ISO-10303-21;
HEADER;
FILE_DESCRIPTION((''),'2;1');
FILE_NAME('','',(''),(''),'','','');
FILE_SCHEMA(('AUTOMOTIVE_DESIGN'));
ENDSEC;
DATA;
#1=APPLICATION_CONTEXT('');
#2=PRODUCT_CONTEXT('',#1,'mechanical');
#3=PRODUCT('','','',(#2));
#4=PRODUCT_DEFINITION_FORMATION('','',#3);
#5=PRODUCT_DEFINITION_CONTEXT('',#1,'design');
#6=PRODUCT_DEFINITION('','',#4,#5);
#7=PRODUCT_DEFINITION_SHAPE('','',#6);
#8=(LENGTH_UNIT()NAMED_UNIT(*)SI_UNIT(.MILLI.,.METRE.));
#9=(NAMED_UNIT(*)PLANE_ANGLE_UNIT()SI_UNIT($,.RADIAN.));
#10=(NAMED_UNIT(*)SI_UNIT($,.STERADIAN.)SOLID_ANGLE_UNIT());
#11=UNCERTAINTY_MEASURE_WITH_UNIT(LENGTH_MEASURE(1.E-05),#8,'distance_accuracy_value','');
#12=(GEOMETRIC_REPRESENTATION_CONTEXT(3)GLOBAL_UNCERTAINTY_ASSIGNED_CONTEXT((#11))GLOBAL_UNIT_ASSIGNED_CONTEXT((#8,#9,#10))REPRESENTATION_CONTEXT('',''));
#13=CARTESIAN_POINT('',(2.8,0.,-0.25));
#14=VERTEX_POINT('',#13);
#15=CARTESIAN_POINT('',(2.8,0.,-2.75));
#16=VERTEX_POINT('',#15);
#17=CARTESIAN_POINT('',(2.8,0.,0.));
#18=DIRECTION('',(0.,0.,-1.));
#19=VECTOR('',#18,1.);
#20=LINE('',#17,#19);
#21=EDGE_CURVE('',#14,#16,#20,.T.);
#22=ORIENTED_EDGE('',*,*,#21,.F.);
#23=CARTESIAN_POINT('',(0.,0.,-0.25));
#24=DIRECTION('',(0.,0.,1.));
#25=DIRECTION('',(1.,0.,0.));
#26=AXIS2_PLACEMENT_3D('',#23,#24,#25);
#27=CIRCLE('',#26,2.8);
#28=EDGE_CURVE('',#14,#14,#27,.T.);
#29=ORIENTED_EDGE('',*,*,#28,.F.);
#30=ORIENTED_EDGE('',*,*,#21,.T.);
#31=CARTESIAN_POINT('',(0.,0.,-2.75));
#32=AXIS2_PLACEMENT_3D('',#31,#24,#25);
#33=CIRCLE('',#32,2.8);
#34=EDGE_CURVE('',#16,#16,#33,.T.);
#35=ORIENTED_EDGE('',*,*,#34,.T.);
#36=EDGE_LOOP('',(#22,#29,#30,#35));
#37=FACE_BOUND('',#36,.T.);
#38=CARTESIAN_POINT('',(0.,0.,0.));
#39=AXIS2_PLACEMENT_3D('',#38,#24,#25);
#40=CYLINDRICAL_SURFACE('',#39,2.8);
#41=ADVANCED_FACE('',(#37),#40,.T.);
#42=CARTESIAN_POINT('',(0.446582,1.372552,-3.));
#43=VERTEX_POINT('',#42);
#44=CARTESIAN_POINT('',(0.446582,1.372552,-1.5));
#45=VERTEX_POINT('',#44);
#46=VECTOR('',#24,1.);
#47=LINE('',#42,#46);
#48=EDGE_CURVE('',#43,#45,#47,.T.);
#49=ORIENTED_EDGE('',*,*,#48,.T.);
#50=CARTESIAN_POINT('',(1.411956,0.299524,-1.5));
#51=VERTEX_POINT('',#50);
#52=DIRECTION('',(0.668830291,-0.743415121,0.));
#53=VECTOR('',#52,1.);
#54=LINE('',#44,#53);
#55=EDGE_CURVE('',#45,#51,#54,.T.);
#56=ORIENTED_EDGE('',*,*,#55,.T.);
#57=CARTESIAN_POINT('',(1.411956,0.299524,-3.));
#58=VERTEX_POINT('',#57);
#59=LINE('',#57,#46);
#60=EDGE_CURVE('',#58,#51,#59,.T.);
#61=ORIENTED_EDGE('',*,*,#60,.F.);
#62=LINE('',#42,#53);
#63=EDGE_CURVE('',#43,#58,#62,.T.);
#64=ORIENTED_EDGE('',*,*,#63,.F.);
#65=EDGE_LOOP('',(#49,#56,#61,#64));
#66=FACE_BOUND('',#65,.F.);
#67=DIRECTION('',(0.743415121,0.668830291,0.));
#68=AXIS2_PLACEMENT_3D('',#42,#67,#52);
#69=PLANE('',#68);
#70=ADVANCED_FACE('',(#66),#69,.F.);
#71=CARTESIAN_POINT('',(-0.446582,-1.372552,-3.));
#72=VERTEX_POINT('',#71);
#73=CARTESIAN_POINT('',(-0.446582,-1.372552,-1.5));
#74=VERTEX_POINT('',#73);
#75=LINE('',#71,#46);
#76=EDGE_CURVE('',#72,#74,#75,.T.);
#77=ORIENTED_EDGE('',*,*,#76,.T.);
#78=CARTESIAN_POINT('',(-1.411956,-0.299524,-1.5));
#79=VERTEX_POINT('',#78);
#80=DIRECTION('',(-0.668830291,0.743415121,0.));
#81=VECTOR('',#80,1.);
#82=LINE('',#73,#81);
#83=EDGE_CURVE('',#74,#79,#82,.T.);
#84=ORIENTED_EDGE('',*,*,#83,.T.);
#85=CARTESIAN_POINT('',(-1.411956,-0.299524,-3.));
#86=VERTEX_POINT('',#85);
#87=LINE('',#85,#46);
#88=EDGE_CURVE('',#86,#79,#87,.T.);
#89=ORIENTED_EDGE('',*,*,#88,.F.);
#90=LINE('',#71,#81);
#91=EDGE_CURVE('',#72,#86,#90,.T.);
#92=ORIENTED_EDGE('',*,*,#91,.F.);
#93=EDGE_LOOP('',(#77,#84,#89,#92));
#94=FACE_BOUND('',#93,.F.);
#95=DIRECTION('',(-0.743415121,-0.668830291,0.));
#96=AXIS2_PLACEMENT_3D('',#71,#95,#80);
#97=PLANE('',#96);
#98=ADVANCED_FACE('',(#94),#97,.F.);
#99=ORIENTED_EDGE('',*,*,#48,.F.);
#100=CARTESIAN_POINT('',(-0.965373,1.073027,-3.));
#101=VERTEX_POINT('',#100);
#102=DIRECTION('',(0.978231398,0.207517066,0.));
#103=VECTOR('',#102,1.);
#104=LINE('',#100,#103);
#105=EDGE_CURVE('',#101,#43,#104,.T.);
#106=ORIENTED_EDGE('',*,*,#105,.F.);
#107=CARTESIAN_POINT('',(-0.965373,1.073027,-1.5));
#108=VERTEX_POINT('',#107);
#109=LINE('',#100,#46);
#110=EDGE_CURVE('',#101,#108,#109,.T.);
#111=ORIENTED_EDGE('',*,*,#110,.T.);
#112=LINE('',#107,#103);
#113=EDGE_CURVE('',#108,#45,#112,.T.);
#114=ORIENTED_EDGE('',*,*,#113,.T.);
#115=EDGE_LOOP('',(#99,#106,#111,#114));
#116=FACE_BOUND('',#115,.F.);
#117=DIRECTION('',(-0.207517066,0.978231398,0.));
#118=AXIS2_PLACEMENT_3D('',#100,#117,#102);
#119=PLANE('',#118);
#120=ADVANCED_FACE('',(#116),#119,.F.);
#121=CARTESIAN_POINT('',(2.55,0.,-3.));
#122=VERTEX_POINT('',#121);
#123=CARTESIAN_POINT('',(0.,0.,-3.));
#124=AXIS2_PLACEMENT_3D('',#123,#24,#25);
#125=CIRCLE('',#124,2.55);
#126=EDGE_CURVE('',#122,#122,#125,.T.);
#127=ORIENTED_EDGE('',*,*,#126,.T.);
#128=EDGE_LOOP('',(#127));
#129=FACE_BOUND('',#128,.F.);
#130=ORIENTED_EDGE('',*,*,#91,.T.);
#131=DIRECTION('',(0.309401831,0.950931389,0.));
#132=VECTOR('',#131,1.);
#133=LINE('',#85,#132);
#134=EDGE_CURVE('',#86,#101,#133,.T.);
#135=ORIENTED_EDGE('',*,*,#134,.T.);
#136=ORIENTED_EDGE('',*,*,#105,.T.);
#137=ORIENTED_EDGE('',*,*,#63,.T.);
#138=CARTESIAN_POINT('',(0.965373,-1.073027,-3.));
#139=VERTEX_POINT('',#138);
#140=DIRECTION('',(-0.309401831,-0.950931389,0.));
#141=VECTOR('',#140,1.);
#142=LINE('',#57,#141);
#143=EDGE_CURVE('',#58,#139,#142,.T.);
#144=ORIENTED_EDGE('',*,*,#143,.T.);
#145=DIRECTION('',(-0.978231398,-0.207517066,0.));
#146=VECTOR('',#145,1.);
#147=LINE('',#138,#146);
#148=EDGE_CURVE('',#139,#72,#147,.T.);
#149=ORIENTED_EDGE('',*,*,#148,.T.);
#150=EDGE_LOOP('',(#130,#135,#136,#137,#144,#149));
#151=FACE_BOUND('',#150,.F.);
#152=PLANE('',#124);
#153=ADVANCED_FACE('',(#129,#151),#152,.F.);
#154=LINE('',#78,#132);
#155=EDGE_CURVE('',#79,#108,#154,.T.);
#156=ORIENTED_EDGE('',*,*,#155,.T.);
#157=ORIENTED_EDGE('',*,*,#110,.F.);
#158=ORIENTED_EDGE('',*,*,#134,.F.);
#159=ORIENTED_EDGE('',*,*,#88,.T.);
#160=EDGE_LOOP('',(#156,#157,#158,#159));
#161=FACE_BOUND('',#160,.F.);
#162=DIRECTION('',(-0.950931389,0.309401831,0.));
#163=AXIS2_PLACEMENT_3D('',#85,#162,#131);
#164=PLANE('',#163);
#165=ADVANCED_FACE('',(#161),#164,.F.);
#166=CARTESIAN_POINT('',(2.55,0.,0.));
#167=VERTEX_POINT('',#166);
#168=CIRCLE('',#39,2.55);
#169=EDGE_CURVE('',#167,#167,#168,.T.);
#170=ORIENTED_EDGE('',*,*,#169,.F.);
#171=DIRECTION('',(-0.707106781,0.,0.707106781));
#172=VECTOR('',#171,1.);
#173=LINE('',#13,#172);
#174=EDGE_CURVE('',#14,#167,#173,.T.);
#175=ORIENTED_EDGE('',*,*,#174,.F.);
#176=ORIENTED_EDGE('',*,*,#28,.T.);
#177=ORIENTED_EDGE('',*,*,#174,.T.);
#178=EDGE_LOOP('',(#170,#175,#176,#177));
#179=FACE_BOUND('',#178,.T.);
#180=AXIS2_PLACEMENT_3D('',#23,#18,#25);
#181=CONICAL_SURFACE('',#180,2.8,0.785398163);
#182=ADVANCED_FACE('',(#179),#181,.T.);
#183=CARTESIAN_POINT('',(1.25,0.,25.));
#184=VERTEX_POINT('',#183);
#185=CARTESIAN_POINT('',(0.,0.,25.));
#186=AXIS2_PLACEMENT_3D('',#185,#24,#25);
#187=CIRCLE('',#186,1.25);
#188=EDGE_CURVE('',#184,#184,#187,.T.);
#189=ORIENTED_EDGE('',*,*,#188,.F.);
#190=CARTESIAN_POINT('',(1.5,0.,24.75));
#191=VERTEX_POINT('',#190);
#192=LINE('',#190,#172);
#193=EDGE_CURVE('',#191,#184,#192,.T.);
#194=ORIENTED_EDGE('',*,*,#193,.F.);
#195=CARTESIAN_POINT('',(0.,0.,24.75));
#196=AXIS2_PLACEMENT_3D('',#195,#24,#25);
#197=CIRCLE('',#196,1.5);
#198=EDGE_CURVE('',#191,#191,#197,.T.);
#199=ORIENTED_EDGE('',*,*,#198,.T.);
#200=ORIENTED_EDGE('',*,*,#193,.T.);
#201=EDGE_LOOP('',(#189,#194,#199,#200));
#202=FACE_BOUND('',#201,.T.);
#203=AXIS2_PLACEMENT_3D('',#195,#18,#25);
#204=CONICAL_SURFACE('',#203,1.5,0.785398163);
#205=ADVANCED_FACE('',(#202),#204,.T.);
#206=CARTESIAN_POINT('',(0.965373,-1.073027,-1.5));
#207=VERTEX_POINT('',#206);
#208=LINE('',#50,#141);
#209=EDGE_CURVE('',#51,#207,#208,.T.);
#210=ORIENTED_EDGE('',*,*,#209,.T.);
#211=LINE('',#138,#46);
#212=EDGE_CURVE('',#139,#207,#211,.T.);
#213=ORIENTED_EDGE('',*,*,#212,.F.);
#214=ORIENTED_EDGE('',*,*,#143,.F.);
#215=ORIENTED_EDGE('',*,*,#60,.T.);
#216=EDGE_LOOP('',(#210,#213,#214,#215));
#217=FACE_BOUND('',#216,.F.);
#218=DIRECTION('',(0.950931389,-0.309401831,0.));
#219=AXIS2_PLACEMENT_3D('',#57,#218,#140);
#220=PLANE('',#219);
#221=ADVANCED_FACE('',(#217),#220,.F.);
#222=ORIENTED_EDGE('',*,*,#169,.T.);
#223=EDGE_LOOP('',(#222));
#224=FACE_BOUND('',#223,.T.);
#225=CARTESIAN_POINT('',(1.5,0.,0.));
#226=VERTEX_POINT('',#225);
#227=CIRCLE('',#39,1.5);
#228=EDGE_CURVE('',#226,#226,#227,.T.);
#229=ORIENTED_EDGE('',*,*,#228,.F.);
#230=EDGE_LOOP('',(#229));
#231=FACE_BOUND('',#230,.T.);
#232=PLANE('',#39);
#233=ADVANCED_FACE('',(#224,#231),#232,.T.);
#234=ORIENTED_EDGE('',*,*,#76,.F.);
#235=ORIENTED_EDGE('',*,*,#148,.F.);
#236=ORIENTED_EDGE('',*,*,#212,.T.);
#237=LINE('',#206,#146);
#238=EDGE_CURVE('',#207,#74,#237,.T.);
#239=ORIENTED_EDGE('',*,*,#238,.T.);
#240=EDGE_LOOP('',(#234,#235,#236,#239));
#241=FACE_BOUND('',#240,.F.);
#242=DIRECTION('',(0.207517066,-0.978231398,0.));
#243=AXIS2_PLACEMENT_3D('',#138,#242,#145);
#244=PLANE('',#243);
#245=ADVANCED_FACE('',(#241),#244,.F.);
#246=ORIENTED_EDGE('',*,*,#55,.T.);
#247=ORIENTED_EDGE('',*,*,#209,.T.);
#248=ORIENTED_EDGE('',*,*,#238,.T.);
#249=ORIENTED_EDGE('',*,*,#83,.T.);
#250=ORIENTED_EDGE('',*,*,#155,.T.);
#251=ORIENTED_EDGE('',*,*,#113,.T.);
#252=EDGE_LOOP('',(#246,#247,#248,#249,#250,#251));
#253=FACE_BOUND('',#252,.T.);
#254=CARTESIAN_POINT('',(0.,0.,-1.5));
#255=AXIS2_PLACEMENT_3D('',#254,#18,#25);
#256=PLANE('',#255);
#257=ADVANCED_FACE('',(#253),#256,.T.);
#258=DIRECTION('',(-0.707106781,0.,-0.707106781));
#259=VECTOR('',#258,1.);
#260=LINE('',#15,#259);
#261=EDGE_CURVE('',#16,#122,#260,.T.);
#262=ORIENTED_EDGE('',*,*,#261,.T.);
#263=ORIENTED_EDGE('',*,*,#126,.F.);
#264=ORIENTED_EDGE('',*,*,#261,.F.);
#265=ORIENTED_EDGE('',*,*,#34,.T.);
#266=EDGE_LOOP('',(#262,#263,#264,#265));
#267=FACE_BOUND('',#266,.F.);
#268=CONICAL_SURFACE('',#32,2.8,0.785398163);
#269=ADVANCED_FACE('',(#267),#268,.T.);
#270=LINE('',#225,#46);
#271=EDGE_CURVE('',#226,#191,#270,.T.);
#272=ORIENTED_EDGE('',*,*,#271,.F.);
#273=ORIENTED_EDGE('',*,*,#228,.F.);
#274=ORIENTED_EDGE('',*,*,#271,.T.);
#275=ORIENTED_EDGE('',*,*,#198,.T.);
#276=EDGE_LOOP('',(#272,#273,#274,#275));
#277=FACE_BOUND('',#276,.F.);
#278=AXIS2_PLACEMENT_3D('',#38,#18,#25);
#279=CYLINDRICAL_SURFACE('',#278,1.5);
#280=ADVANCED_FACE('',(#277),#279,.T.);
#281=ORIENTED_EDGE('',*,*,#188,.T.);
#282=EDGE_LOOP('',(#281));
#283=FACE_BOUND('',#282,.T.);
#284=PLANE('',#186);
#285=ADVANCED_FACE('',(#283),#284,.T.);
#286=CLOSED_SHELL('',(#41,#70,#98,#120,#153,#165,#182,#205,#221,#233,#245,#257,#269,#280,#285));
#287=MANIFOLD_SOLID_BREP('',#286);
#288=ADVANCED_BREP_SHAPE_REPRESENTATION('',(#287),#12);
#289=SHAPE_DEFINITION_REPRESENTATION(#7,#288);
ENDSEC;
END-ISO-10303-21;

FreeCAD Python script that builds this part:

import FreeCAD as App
import Part
import Sketcher

V = App.Vector


def edges_at(feature, points):
    """Names of the edges that pass closest to the given points."""
    edges = feature.Shape.Edges
    near = lambda p: min(range(len(edges)), key=lambda i: edges[i].distToShape(Part.Vertex(*p))[0])
    return sorted({f"Edge{near(p) + 1}" for p in points})

doc = App.newDocument("Part")
body = doc.addObject("PartDesign::Body", "Body")

sketch1 = body.newObject("Sketcher::SketchObject", "Sketch")
sketch1.AttachmentSupport = (doc.getObject("XY_Plane"), [""])
sketch1.MapMode = "FlatFace"
sketch1.addGeometry(Part.Circle(V(0, 0, 0), V(0, 0, 1), 1.5), False)
sketch1.addConstraint([
    Sketcher.Constraint("Coincident", 0, 3, -1, 1),
    Sketcher.Constraint("Diameter", 0, 3.0),
])
pad1 = body.newObject("PartDesign::Pad", "Pad")
pad1.Profile = sketch1
pad1.Length = 25

sketch2 = body.newObject("Sketcher::SketchObject", "Sketch001")
sketch2.AttachmentSupport = (doc.getObject("XY_Plane"), [""])
sketch2.MapMode = "FlatFace"
sketch2.addGeometry(Part.Circle(V(0, 0, 0), V(0, 0, 1), 2.8), False)
sketch2.addConstraint([
    Sketcher.Constraint("Coincident", 0, 3, -1, 1),
    Sketcher.Constraint("Diameter", 0, 5.6),
])
pad2 = body.newObject("PartDesign::Pad", "Pad001")
pad2.Profile = sketch2
pad2.Length = 3
pad2.Reversed = True

sketch3 = body.newObject("Sketcher::SketchObject", "Sketch002")
sketch3.AttachmentSupport = (doc.getObject("XY_Plane"), [""])
sketch3.MapMode = "FlatFace"
sketch3.AttachmentOffset = App.Placement(V(0, 0, -3), App.Rotation())
sketch3.addGeometry([
    Part.LineSegment(V(0.4, 1.4, 0), V(1.4, 0.3, 0)),
    Part.LineSegment(V(1.4, 0.3, 0), V(1, -1.1, 0)),
    Part.LineSegment(V(1, -1.1, 0), V(-0.4, -1.4, 0)),
    Part.LineSegment(V(-0.4, -1.4, 0), V(-1.4, -0.3, 0)),
    Part.LineSegment(V(-1.4, -0.3, 0), V(-1, 1.1, 0)),
    Part.LineSegment(V(-1, 1.1, 0), V(0.4, 1.4, 0)),
], False)
sketch3.addConstraint([
    Sketcher.Constraint("Coincident", 0, 2, 1, 1),
    Sketcher.Constraint("Coincident", 1, 2, 2, 1),
    Sketcher.Constraint("Coincident", 2, 2, 3, 1),
    Sketcher.Constraint("Coincident", 3, 2, 4, 1),
    Sketcher.Constraint("Coincident", 4, 2, 5, 1),
    Sketcher.Constraint("Coincident", 5, 2, 0, 1),
    Sketcher.Constraint("Symmetric", 0, 2, 3, 2, -1, 1),
    Sketcher.Constraint("Symmetric", 1, 2, 4, 2, -1, 1),
    Sketcher.Constraint("Symmetric", 2, 2, 5, 2, -1, 1),
    Sketcher.Constraint("Equal", 0, 1),
    Sketcher.Constraint("Equal", 1, 2),
    Sketcher.Constraint("DistanceY", 1, 2, 0, 2, 1.372551),
    Sketcher.Constraint("DistanceX", 3, 2, 1, 2, 2.377329),
    Sketcher.Constraint("DistanceX", 3, 2, 0, 2, 2.823912),
    Sketcher.Constraint("DistanceY", 3, 2, 0, 2, 0.599048),
])
pocket1 = body.newObject("PartDesign::Pocket", "Pocket")
pocket1.Profile = sketch3
pocket1.Length = 1.5
pocket1.Reversed = True
doc.recompute()

chamfer = body.newObject("PartDesign::Chamfer", "Chamfer")
chamfer.Base = (pocket1, edges_at(pocket1, [(-2.8, 0, -3), (-1.5, 0, 25), (-2.8, 0, 0)]))
chamfer.Size = 0.25

doc.recompute()
